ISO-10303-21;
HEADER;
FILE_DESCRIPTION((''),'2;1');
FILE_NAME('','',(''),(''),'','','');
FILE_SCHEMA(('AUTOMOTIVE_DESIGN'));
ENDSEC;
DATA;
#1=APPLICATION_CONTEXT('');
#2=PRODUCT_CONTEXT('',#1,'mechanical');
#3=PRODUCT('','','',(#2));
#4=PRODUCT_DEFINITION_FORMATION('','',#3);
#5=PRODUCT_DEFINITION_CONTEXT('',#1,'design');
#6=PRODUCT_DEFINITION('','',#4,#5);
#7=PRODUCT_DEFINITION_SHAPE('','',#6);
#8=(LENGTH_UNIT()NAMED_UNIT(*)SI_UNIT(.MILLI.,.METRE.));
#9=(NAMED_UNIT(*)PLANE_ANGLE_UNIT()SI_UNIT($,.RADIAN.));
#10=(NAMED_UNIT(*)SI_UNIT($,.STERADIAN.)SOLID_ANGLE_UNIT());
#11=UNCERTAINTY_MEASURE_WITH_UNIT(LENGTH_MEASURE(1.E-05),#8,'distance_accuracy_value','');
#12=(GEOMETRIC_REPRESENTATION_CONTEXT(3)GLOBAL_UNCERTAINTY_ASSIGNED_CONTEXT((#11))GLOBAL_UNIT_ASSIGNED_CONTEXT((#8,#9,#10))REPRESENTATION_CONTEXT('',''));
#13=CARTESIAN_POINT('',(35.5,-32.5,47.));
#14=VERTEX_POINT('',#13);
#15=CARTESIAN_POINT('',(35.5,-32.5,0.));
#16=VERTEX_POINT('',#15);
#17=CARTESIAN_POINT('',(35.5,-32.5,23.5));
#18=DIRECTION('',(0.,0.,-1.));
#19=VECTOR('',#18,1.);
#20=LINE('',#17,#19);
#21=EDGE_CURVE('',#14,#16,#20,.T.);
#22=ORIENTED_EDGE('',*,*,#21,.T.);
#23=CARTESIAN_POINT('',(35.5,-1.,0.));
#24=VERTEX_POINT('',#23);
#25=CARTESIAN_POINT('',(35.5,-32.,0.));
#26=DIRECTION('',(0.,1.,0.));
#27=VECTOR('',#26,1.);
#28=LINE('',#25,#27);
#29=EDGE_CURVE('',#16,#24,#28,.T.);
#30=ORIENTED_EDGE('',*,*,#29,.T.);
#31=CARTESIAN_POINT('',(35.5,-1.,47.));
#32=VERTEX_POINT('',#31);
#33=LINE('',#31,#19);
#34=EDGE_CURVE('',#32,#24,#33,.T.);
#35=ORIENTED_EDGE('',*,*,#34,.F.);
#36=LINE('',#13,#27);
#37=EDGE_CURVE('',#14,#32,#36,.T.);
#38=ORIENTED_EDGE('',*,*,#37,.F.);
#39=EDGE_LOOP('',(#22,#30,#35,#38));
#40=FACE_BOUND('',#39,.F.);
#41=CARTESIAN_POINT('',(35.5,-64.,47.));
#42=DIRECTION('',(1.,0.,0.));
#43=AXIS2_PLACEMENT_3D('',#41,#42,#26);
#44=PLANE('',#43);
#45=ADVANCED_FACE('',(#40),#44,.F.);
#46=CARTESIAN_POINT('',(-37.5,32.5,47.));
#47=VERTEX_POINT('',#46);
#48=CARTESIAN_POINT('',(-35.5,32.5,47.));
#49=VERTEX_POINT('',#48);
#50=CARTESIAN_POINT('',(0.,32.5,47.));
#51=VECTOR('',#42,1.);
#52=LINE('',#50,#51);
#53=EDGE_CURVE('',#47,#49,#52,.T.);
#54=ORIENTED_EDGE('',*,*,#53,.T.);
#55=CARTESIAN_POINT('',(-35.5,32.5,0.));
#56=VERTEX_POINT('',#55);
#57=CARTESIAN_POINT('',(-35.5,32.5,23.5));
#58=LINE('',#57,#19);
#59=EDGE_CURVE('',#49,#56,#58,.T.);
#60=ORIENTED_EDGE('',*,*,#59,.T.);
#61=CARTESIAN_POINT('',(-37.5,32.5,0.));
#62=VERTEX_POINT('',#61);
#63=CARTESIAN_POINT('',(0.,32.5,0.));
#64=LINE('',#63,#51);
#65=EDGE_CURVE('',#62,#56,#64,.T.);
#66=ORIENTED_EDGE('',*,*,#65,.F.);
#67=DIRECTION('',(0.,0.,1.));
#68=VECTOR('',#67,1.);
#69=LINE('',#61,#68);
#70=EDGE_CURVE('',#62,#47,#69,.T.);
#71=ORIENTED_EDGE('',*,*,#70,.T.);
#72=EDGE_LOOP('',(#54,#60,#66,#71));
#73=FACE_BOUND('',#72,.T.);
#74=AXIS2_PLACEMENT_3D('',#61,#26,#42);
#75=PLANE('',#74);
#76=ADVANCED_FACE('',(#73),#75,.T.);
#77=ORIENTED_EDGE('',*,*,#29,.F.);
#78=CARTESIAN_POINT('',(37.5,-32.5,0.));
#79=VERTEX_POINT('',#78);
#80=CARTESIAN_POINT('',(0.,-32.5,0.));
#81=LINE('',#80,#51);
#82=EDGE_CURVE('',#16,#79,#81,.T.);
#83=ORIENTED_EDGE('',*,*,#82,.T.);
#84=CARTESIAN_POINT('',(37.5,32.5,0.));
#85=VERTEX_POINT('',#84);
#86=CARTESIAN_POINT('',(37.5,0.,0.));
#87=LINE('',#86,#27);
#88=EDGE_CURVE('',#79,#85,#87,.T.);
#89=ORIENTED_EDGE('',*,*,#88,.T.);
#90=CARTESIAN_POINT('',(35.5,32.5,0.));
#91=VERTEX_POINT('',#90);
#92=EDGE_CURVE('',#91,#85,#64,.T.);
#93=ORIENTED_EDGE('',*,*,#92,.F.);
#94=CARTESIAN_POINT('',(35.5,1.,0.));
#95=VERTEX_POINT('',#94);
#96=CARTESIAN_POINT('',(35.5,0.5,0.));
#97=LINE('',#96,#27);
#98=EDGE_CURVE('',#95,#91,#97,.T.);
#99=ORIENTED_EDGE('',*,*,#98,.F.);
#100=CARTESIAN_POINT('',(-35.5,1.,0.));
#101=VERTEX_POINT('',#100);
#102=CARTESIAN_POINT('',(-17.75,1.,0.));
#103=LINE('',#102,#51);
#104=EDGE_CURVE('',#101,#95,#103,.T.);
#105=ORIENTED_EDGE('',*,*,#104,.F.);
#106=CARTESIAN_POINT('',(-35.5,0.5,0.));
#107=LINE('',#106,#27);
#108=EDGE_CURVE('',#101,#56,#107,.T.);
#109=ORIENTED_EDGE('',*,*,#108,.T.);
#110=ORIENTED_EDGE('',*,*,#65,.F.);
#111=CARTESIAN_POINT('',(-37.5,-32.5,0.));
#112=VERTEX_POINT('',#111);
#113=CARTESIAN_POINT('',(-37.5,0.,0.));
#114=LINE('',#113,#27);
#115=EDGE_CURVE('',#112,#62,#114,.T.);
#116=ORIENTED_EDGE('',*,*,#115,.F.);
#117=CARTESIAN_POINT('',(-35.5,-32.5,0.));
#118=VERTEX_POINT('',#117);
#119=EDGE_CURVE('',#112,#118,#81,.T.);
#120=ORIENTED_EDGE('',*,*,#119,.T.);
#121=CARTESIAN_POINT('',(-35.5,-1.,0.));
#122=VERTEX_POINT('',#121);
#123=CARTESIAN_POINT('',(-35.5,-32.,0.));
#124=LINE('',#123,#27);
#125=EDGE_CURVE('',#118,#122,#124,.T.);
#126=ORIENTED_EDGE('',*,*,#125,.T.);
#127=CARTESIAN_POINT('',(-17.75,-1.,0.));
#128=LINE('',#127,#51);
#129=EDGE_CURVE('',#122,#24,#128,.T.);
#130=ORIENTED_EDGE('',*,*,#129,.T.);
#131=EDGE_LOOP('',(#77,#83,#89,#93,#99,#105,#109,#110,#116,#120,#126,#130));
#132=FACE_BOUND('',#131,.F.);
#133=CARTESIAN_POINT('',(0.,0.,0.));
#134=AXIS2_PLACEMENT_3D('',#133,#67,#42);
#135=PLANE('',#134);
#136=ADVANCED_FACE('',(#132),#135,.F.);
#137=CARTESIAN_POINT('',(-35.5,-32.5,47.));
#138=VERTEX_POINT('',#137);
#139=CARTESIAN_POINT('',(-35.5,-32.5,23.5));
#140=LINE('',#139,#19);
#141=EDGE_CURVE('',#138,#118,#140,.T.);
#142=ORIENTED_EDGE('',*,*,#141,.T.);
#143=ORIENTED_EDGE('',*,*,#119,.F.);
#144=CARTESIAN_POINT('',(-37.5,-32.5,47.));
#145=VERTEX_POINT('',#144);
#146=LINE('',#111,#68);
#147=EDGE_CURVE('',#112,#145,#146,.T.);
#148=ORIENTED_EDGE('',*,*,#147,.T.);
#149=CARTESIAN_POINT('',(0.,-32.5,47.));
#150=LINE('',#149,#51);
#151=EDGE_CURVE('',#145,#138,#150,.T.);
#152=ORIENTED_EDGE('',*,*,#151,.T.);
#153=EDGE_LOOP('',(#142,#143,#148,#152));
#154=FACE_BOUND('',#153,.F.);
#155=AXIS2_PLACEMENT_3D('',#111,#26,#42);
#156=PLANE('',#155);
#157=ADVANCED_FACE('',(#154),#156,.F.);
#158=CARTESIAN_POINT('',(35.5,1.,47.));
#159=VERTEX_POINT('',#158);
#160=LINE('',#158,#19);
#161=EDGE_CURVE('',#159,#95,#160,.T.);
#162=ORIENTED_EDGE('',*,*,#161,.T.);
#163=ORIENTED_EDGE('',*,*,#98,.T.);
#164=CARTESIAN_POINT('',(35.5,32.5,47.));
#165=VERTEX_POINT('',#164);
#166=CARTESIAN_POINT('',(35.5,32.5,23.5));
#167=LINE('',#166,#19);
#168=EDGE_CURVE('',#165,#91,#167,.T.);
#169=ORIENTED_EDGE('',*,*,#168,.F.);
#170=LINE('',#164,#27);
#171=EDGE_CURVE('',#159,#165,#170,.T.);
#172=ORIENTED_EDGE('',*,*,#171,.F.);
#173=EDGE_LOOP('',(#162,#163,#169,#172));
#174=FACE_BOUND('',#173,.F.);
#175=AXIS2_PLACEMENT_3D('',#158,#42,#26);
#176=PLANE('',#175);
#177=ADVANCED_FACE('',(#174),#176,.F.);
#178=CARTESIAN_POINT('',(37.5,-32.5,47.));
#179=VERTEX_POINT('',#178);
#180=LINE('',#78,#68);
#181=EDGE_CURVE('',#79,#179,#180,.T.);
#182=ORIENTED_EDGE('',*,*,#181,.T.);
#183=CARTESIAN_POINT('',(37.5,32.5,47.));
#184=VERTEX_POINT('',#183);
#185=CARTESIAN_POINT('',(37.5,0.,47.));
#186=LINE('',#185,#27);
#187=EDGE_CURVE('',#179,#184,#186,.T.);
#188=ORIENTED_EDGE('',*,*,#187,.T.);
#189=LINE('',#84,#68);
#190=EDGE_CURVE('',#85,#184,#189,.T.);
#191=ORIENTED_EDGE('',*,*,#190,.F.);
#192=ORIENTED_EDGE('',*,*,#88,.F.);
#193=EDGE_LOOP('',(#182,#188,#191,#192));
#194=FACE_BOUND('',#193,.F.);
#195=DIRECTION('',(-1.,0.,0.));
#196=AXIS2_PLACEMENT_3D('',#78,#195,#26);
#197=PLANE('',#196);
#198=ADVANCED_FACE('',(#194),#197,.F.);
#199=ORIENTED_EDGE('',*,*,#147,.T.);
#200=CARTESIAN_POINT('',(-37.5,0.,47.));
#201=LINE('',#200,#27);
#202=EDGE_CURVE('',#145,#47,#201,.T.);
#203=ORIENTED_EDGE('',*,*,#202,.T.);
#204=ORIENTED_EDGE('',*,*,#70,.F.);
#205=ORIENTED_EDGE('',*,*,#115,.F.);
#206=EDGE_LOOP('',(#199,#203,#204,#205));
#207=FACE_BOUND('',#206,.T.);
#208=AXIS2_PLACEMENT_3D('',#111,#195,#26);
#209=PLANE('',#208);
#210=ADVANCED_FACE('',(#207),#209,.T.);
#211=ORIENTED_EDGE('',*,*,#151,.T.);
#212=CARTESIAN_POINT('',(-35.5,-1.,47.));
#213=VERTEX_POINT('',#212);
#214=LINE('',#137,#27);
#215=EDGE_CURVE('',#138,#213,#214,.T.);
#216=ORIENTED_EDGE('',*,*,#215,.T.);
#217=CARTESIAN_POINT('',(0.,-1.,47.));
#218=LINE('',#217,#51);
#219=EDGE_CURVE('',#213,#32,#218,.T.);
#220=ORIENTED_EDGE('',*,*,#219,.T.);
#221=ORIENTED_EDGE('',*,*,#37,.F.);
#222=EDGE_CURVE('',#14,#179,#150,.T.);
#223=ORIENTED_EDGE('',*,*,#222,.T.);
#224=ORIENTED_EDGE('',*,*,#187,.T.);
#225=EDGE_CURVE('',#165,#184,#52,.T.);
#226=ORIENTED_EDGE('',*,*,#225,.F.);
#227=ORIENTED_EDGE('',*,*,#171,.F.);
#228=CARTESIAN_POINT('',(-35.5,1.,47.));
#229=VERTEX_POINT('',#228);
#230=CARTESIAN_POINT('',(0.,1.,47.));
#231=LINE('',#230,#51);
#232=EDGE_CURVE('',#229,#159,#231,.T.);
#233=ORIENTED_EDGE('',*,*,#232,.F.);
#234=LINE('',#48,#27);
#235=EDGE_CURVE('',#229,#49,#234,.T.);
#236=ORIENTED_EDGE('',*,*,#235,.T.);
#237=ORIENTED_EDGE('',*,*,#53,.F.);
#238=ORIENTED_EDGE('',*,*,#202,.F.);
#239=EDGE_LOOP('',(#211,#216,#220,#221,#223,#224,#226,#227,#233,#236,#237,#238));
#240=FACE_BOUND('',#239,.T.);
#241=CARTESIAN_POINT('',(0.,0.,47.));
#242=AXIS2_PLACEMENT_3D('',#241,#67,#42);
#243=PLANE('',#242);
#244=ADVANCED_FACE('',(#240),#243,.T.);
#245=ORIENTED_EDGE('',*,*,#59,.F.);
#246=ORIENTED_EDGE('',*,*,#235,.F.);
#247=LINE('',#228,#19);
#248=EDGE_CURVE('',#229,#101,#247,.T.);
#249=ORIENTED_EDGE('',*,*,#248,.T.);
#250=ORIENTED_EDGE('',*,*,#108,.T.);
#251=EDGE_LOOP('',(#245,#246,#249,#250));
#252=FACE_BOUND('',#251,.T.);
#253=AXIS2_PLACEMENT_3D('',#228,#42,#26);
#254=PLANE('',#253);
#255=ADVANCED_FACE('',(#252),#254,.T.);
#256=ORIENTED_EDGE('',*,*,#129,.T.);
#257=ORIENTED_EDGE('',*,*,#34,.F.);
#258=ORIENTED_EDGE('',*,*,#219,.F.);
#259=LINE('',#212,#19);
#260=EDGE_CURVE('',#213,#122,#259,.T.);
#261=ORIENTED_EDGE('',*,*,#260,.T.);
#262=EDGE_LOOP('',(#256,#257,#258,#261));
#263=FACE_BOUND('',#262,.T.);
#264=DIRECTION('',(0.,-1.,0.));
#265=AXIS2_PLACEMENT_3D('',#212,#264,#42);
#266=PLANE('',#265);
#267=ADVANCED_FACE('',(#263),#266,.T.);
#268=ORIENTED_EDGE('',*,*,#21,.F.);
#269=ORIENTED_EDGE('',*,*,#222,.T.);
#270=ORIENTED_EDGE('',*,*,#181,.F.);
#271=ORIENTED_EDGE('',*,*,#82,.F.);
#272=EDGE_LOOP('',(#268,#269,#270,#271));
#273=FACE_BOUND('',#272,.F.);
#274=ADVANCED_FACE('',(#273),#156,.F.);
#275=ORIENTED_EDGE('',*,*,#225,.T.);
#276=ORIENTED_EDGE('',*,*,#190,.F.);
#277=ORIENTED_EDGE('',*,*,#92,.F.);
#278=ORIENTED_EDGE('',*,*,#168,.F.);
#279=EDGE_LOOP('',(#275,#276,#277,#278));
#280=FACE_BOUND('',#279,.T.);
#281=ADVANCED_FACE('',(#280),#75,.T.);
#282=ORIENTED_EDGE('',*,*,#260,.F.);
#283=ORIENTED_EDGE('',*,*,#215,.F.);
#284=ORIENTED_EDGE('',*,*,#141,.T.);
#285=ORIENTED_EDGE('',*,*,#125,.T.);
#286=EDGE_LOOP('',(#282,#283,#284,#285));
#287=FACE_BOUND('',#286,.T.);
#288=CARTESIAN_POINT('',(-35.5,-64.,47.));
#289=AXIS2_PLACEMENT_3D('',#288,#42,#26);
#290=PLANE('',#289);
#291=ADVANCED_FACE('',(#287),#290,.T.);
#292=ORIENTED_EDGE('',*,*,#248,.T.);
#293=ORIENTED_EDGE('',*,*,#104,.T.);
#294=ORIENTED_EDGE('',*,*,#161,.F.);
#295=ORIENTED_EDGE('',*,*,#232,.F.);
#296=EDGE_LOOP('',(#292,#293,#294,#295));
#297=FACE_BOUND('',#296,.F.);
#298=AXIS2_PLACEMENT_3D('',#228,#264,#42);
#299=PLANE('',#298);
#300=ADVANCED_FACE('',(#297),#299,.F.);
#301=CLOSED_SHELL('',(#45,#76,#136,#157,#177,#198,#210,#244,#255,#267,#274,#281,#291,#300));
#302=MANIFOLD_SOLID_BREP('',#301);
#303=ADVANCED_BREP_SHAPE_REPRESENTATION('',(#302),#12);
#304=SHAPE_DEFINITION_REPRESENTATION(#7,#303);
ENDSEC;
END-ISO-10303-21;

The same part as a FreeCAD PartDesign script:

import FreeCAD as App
import Part
import Sketcher
from FreeCAD import Vector
Q = App.Units.Quantity


def add_polygon(sketch, points):
    """Adds a closed chain of lines whose ends are joined by coincident constraints."""
    first, n = sketch.GeometryCount, len(points)
    for a, b in zip(points, points[1:] + points[:1]):
        sketch.addGeometry(Part.LineSegment(App.Vector(*a, 0), App.Vector(*b, 0)), False)
    for i in range(n):
        sketch.addConstraint(Sketcher.Constraint("Coincident", first + i, 2, first + (i + 1) % n, 1))

doc = App.newDocument("Part")
params = doc.addObject("Spreadsheet::Sheet", "Params")
for row, (alias, value) in enumerate([
    ("sketch1_width", "75 mm"),
    ("sketch1_height", "65 mm"),
    ("pad1_length", "47 mm"),
    ("sketch2_width", "71 mm"),
    ("sketch2_height", "63 mm"),
    ("pocket1_length", "66.71901 mm"),
], start=1):
    params.set(f"A{row}", alias)
    params.set(f"B{row}", "=" + value)
    params.setAlias(f"B{row}", alias)

body = doc.addObject("PartDesign::Body", "Body")

# Sketch on XY plane
sketch1 = doc.addObject("Sketcher::SketchObject", "Sketch")
body.addObject(sketch1)
sketch1.AttachmentSupport = (doc.XY_Plane, [""])
sketch1.MapMode = "FlatFace"
add_polygon(sketch1, [(-37.5, 32.5), (-37.5, -32.5), (37.5, -32.5), (37.5, 32.5)])  # lines 0-3
sketch1.addConstraint([
    Sketcher.Constraint("Vertical", 0),
    Sketcher.Constraint("Horizontal", 1),
    Sketcher.Constraint("Vertical", 2),
    Sketcher.Constraint("Horizontal", 3),
    Sketcher.Constraint("Symmetric", 0, 2, 2, 2, -1, 1),
    Sketcher.Constraint("DistanceX", 1, 1, 1, 2, Q("75 mm")),
    Sketcher.Constraint("DistanceY", 0, 2, 0, 1, Q("65 mm")),
])
sketch1.setExpression("Constraints[9]", "Params.sketch1_width")
sketch1.setExpression("Constraints[10]", "Params.sketch1_height")
pad1 = doc.addObject("PartDesign::Pad", "Pad")
body.addObject(pad1)
pad1.Profile = sketch1
pad1.setExpression("Length", "Params.pad1_length")

# Sketch on XY plane
sketch2 = doc.addObject("Sketcher::SketchObject", "Sketch001")
body.addObject(sketch2)
sketch2.AttachmentSupport = (doc.XY_Plane, [""])
sketch2.MapMode = "FlatFace"
sketch2.AttachmentOffset = App.Placement(Vector(0, 0, 47), App.Rotation())
add_polygon(sketch2, [(-35.5, 64), (-35.5, 1), (35.5, 1), (35.5, 64)])  # lines 0-3
add_polygon(sketch2, [(-35.5, -1), (-35.5, -64), (35.5, -64), (35.5, -1)])  # lines 4-7
sketch2.addConstraint([
    Sketcher.Constraint("Vertical", 0),
    Sketcher.Constraint("Horizontal", 1),
    Sketcher.Constraint("Vertical", 2),
    Sketcher.Constraint("Horizontal", 3),
    Sketcher.Constraint("Vertical", 4),
    Sketcher.Constraint("Horizontal", 5),
    Sketcher.Constraint("Vertical", 6),
    Sketcher.Constraint("Horizontal", 7),
    Sketcher.Constraint("Symmetric", 2, 2, 4, 2, -1, 1),
    Sketcher.Constraint("Symmetric", 0, 2, 6, 2, -1, 1),
    Sketcher.Constraint("Vertical", 3, 2, 4, 2),
    Sketcher.Constraint("DistanceX", 1, 1, 1, 2, Q("71 mm")),
    Sketcher.Constraint("DistanceY", 0, 2, 0, 1, Q("63 mm")),
    Sketcher.Constraint("DistanceY", -1, 1, 0, 2, Q("1 mm")),
])
sketch2.setExpression("Constraints[19]", "Params.sketch2_width")
sketch2.setExpression("Constraints[20]", "Params.sketch2_height")
pocket1 = doc.addObject("PartDesign::Pocket", "Pocket")
body.addObject(pocket1)
pocket1.Profile = sketch2
pocket1.setExpression("Length", "Params.pocket1_length")

doc.recompute()
